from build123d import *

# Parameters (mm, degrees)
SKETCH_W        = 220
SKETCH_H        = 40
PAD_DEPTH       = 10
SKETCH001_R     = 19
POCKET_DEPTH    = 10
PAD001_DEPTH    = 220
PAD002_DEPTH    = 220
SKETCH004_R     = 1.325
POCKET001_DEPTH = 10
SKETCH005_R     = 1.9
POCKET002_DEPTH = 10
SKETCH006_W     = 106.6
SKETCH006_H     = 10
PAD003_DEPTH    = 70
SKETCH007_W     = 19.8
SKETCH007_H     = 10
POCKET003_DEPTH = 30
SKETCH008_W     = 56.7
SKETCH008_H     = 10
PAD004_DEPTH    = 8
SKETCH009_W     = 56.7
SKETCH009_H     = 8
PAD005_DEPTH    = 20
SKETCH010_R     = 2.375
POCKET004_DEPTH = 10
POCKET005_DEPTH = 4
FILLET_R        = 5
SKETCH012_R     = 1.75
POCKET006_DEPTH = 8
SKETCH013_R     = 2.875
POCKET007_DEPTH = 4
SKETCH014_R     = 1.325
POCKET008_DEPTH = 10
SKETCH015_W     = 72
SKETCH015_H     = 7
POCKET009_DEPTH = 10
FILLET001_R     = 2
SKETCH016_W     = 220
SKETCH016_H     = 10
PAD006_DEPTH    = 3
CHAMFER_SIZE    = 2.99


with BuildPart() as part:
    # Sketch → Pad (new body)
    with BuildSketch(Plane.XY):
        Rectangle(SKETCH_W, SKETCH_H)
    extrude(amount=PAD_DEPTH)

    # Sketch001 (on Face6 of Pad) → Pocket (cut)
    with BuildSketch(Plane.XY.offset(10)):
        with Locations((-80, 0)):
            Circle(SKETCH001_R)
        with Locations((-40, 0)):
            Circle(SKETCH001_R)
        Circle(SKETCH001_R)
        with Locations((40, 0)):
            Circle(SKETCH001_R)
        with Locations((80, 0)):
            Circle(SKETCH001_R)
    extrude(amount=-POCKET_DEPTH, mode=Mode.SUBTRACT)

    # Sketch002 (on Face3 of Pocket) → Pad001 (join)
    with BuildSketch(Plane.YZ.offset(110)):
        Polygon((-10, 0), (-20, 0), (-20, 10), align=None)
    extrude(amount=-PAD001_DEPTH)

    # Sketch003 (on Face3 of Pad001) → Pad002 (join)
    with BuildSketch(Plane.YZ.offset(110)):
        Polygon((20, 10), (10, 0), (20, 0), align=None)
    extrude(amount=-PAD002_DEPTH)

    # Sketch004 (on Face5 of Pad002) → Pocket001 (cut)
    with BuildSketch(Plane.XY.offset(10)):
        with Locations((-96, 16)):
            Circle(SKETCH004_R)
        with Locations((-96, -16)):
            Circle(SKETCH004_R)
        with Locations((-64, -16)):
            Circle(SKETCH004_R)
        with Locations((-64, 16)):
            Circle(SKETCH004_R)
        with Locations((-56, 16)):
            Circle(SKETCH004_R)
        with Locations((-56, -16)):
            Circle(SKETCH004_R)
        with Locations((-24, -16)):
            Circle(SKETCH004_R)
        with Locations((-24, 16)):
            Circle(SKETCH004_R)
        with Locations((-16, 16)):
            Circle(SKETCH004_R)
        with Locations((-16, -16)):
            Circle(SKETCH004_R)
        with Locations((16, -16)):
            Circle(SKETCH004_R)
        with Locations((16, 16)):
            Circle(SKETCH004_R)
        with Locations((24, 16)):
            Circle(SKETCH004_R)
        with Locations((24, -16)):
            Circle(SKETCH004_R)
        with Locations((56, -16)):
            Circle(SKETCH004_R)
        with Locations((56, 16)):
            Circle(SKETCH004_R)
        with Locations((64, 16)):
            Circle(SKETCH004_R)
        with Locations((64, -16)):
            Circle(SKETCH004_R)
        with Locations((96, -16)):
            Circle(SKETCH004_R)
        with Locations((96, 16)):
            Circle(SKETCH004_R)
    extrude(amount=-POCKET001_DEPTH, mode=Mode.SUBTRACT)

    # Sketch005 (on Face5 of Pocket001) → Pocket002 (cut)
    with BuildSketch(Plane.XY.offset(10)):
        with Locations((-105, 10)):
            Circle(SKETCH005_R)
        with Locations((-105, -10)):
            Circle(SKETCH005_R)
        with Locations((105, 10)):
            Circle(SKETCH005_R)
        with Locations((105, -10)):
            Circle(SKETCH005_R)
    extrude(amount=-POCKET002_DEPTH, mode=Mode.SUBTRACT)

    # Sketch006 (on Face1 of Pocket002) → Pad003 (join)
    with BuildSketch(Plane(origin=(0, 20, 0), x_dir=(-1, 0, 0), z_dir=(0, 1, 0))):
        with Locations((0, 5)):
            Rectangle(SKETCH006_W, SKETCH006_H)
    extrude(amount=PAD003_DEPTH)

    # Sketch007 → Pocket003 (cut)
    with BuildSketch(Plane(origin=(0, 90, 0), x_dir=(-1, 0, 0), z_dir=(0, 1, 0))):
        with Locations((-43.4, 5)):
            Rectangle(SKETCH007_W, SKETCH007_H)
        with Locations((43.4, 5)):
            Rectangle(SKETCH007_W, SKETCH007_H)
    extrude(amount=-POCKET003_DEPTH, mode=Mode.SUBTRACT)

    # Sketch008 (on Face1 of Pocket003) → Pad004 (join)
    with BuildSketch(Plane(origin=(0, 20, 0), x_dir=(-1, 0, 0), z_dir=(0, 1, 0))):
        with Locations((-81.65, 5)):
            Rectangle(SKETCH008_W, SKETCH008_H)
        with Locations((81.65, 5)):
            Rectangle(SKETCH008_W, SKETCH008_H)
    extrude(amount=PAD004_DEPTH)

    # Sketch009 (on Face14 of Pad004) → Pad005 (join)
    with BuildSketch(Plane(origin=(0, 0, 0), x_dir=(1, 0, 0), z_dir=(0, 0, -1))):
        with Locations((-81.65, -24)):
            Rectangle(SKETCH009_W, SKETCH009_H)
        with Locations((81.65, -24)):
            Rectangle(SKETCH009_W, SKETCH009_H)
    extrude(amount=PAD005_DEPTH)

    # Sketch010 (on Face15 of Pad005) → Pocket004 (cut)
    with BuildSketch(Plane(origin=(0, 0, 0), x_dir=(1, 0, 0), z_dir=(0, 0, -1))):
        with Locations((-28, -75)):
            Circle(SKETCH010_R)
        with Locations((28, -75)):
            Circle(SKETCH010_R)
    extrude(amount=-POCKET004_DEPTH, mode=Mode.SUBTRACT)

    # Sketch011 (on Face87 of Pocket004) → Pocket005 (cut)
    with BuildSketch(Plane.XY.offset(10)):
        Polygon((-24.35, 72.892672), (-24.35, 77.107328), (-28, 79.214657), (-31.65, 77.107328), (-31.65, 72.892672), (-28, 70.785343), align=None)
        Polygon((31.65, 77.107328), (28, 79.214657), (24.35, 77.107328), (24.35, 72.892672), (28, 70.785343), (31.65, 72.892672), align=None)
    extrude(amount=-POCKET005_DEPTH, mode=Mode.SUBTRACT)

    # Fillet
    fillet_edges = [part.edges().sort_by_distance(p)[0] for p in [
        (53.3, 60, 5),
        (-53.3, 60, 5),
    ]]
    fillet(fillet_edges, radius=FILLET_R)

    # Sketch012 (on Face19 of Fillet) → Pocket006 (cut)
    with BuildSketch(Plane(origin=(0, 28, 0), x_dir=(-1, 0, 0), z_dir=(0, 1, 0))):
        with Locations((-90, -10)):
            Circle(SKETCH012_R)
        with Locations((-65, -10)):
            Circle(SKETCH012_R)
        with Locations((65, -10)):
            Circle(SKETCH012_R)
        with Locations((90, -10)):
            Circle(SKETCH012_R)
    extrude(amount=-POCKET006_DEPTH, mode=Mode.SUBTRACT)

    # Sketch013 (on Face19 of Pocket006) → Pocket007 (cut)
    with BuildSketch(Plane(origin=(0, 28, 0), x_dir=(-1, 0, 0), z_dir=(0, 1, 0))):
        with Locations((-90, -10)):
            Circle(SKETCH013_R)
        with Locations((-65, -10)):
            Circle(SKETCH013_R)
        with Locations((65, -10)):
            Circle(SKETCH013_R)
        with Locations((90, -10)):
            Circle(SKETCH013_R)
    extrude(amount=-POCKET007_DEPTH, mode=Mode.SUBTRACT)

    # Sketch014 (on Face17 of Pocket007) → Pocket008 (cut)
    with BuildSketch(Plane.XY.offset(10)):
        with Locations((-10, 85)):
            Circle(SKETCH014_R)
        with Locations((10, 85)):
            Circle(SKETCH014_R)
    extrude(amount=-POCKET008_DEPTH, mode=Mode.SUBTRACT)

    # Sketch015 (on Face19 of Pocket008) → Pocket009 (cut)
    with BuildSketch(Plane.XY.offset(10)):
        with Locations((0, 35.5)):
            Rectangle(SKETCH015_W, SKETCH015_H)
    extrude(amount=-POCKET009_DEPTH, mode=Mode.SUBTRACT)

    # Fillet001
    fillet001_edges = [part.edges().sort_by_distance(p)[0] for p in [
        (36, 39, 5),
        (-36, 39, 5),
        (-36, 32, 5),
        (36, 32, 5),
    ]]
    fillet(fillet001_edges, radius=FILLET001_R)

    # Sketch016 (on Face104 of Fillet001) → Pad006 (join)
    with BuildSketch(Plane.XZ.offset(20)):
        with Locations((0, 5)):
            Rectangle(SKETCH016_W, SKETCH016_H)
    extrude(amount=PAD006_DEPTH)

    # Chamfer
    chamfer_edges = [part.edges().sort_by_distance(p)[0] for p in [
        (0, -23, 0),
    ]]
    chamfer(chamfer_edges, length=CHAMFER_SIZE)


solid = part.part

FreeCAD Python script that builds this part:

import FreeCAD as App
import Part
import Sketcher
Q = App.Units.Quantity


def edges_at(feature, points):
    """Names of the edges that pass closest to the given points."""
    edges = feature.Shape.Edges
    near = lambda p: min(range(len(edges)), key=lambda i: edges[i].distToShape(Part.Vertex(*p))[0])
    return sorted({f"Edge{near(p) + 1}" for p in points})


def add_polygon(sketch, points):
    """Adds a closed chain of lines whose ends are joined by coincident constraints."""
    first, n = sketch.GeometryCount, len(points)
    for a, b in zip(points, points[1:] + points[:1]):
        sketch.addGeometry(Part.LineSegment(App.Vector(*a, 0), App.Vector(*b, 0)), False)
    for i in range(n):
        sketch.addConstraint(Sketcher.Constraint("Coincident", first + i, 2, first + (i + 1) % n, 1))

doc = App.newDocument("Part")
body = doc.addObject("PartDesign::Body", "Body")

# Sketch on XY plane
sketch1 = doc.addObject("Sketcher::SketchObject", "Sketch")
body.addObject(sketch1)
sketch1.AttachmentSupport = (doc.XY_Plane, [""])
sketch1.MapMode = "FlatFace"
add_polygon(sketch1, [(-110, 20), (-110, -20), (110, -20), (110, 20)])  # lines 0-3
sketch1.addConstraint(Sketcher.Constraint("Vertical", 0))
sketch1.addConstraint(Sketcher.Constraint("Horizontal", 1))
sketch1.addConstraint(Sketcher.Constraint("Vertical", 2))
sketch1.addConstraint(Sketcher.Constraint("Horizontal", 3))
sketch1.addConstraint(Sketcher.Constraint("Symmetric", 0, 2, 2, 2, -1, 1))
sketch1.addConstraint(Sketcher.Constraint("DistanceX", 1, 1, 1, 2, 220.0))
sketch1.addConstraint(Sketcher.Constraint("DistanceY", 0, 2, 0, 1, 40.0))
pad1 = doc.addObject("PartDesign::Pad", "Pad")
body.addObject(pad1)
pad1.Profile = sketch1
pad1.Length = 10

# Sketch on XY plane
sketch2 = doc.addObject("Sketcher::SketchObject", "Sketch001")
body.addObject(sketch2)
sketch2.AttachmentSupport = (doc.XY_Plane, [""])
sketch2.MapMode = "FlatFace"
sketch2.AttachmentOffset = App.Placement(App.Vector(0, 0, 10), App.Rotation())
sketch2.addGeometry(Part.Circle(App.Vector(-80, 0, 0), App.Vector(0, 0, 1), 19), False)
sketch2.addGeometry(Part.Circle(App.Vector(-40, 0, 0), App.Vector(0, 0, 1), 19), False)
sketch2.addGeometry(Part.Circle(App.Vector(0, 0, 0), App.Vector(0, 0, 1), 19), False)
sketch2.addGeometry(Part.Circle(App.Vector(40, 0, 0), App.Vector(0, 0, 1), 19), False)
sketch2.addGeometry(Part.Circle(App.Vector(80, 0, 0), App.Vector(0, 0, 1), 19), False)
sketch2.addConstraint(Sketcher.Constraint("Coincident", 2, 3, -1, 1))
sketch2.addConstraint(Sketcher.Constraint("Equal", 0, 1))
sketch2.addConstraint(Sketcher.Constraint("Equal", 1, 2))
sketch2.addConstraint(Sketcher.Constraint("Equal", 2, 3))
sketch2.addConstraint(Sketcher.Constraint("Equal", 3, 4))
sketch2.addConstraint(Sketcher.Constraint("Symmetric", 1, 3, 3, 3, -1, 1))
sketch2.addConstraint(Sketcher.Constraint("Symmetric", 0, 3, 4, 3, -1, 1))
sketch2.addConstraint(Sketcher.Constraint("PointOnObject", 0, 3, -1))
sketch2.addConstraint(Sketcher.Constraint("PointOnObject", 1, 3, -1))
sketch2.addConstraint(Sketcher.Constraint("Diameter", 0, 38.0))
sketch2.addConstraint(Sketcher.Constraint("DistanceX", 0, 3, -1, 1, 80.0))
sketch2.addConstraint(Sketcher.Constraint("DistanceX", 1, 3, -1, 1, 40.0))
pocket1 = doc.addObject("PartDesign::Pocket", "Pocket")
body.addObject(pocket1)
pocket1.Profile = sketch2
pocket1.Length = 10

# Sketch on YZ plane
sketch3 = doc.addObject("Sketcher::SketchObject", "Sketch002")
body.addObject(sketch3)
sketch3.AttachmentSupport = (doc.YZ_Plane, [""])
sketch3.MapMode = "FlatFace"
sketch3.AttachmentOffset = App.Placement(App.Vector(0, 0, 110), App.Rotation())
add_polygon(sketch3, [(-20, 0), (-10, 0), (-20, 10)])  # lines 0-2
sketch3.addConstraint(Sketcher.Constraint("Horizontal", 0))
sketch3.addConstraint(Sketcher.Constraint("Vertical", 2))
sketch3.addConstraint(Sketcher.Constraint("PointOnObject", 0, 2, -1))
sketch3.addConstraint(Sketcher.Constraint("Equal", 0, 2))
sketch3.addConstraint(Sketcher.Constraint("DistanceX", 0, 1, 0, 2, 10.0))
sketch3.addConstraint(Sketcher.Constraint("DistanceX", 0, 2, -1, 1, 10.0))
pad2 = doc.addObject("PartDesign::Pad", "Pad001")
body.addObject(pad2)
pad2.Profile = sketch3
pad2.Length = 220
pad2.Reversed = True

# Sketch on YZ plane
sketch4 = doc.addObject("Sketcher::SketchObject", "Sketch003")
body.addObject(sketch4)
sketch4.AttachmentSupport = (doc.YZ_Plane, [""])
sketch4.MapMode = "FlatFace"
sketch4.AttachmentOffset = App.Placement(App.Vector(0, 0, 110), App.Rotation())
add_polygon(sketch4, [(20, 10), (10, 0), (20, 0)])  # lines 0-2
sketch4.addConstraint(Sketcher.Constraint("Horizontal", 1))
sketch4.addConstraint(Sketcher.Constraint("Vertical", 2))
sketch4.addConstraint(Sketcher.Constraint("PointOnObject", 0, 2, -1))
sketch4.addConstraint(Sketcher.Constraint("Equal", 1, 2))
sketch4.addConstraint(Sketcher.Constraint("DistanceX", 1, 1, 1, 2, 10.0))
sketch4.addConstraint(Sketcher.Constraint("DistanceX", -1, 1, 0, 2, 10.0))
pad3 = doc.addObject("PartDesign::Pad", "Pad002")
body.addObject(pad3)
pad3.Profile = sketch4
pad3.Length = 220
pad3.Reversed = True

# Sketch on XY plane
sketch5 = doc.addObject("Sketcher::SketchObject", "Sketch004")
body.addObject(sketch5)
sketch5.AttachmentSupport = (doc.XY_Plane, [""])
sketch5.MapMode = "FlatFace"
sketch5.AttachmentOffset = App.Placement(App.Vector(0, 0, 10), App.Rotation())
sketch5.addGeometry(Part.Circle(App.Vector(-96, 16, 0), App.Vector(0, 0, 1), 1.325), False)
sketch5.addGeometry(Part.Circle(App.Vector(-96, -16, 0), App.Vector(0, 0, 1), 1.325), False)
sketch5.addGeometry(Part.Circle(App.Vector(-64, -16, 0), App.Vector(0, 0, 1), 1.325), False)
sketch5.addGeometry(Part.Circle(App.Vector(-64, 16, 0), App.Vector(0, 0, 1), 1.325), False)
sketch5.addGeometry(Part.Circle(App.Vector(-56, 16, 0), App.Vector(0, 0, 1), 1.325), False)
sketch5.addGeometry(Part.Circle(App.Vector(-56, -16, 0), App.Vector(0, 0, 1), 1.325), False)
sketch5.addGeometry(Part.Circle(App.Vector(-24, -16, 0), App.Vector(0, 0, 1), 1.325), False)
sketch5.addGeometry(Part.Circle(App.Vector(-24, 16, 0), App.Vector(0, 0, 1), 1.325), False)
sketch5.addGeometry(Part.Circle(App.Vector(-16, 16, 0), App.Vector(0, 0, 1), 1.325), False)
sketch5.addGeometry(Part.Circle(App.Vector(-16, -16, 0), App.Vector(0, 0, 1), 1.325), False)
sketch5.addGeometry(Part.Circle(App.Vector(16, -16, 0), App.Vector(0, 0, 1), 1.325), False)
sketch5.addGeometry(Part.Circle(App.Vector(16, 16, 0), App.Vector(0, 0, 1), 1.325), False)
sketch5.addGeometry(Part.Circle(App.Vector(24, 16, 0), App.Vector(0, 0, 1), 1.325), False)
sketch5.addGeometry(Part.Circle(App.Vector(24, -16, 0), App.Vector(0, 0, 1), 1.325), False)
sketch5.addGeometry(Part.Circle(App.Vector(56, -16, 0), App.Vector(0, 0, 1), 1.325), False)
sketch5.addGeometry(Part.Circle(App.Vector(56, 16, 0), App.Vector(0, 0, 1), 1.325), False)
sketch5.addGeometry(Part.Circle(App.Vector(64, 16, 0), App.Vector(0, 0, 1), 1.325), False)
sketch5.addGeometry(Part.Circle(App.Vector(64, -16, 0), App.Vector(0, 0, 1), 1.325), False)
sketch5.addGeometry(Part.Circle(App.Vector(96, -16, 0), App.Vector(0, 0, 1), 1.325), False)
sketch5.addGeometry(Part.Circle(App.Vector(96, 16, 0), App.Vector(0, 0, 1), 1.325), False)
sketch5.addConstraint(Sketcher.Constraint("Equal", 0, 1))
sketch5.addConstraint(Sketcher.Constraint("Equal", 1, 2))
sketch5.addConstraint(Sketcher.Constraint("Equal", 2, 3))
sketch5.addConstraint(Sketcher.Constraint("Equal", 3, 4))
sketch5.addConstraint(Sketcher.Constraint("Equal", 4, 5))
sketch5.addConstraint(Sketcher.Constraint("Equal", 5, 6))
sketch5.addConstraint(Sketcher.Constraint("Equal", 6, 7))
sketch5.addConstraint(Sketcher.Constraint("Equal", 7, 8))
sketch5.addConstraint(Sketcher.Constraint("Equal", 8, 9))
sketch5.addConstraint(Sketcher.Constraint("Equal", 9, 10))
sketch5.addConstraint(Sketcher.Constraint("Equal", 10, 11))
sketch5.addConstraint(Sketcher.Constraint("Equal", 11, 12))
sketch5.addConstraint(Sketcher.Constraint("Equal", 12, 13))
sketch5.addConstraint(Sketcher.Constraint("Equal", 13, 14))
sketch5.addConstraint(Sketcher.Constraint("Equal", 14, 15))
sketch5.addConstraint(Sketcher.Constraint("Equal", 15, 16))
sketch5.addConstraint(Sketcher.Constraint("Equal", 16, 17))
sketch5.addConstraint(Sketcher.Constraint("Equal", 17, 18))
sketch5.addConstraint(Sketcher.Constraint("Equal", 18, 19))
sketch5.addConstraint(Sketcher.Constraint("Symmetric", 8, 3, 10, 3, -1, 1))
sketch5.addConstraint(Sketcher.Constraint("Symmetric", 9, 3, 11, 3, -1, 1))
sketch5.addConstraint(Sketcher.Constraint("Symmetric", 6, 3, 12, 3, -1, 1))
sketch5.addConstraint(Sketcher.Constraint("Symmetric", 7, 3, 13, 3, -1, 1))
sketch5.addConstraint(Sketcher.Constraint("Symmetric", 4, 3, 14, 3, -1, 1))
sketch5.addConstraint(Sketcher.Constraint("Symmetric", 5, 3, 15, 3, -1, 1))
sketch5.addConstraint(Sketcher.Constraint("Symmetric", 2, 3, 16, 3, -1, 1))
sketch5.addConstraint(Sketcher.Constraint("Symmetric", 3, 3, 17, 3, -1, 1))
sketch5.addConstraint(Sketcher.Constraint("Symmetric", 0, 3, 18, 3, -1, 1))
sketch5.addConstraint(Sketcher.Constraint("Symmetric", 1, 3, 19, 3, -1, 1))
sketch5.addConstraint(Sketcher.Constraint("Symmetric", 9, 3, 10, 3, -2))
sketch5.addConstraint(Sketcher.Constraint("Symmetric", 7, 3, 12, 3, -2))
sketch5.addConstraint(Sketcher.Constraint("Symmetric", 5, 3, 14, 3, -2))
sketch5.addConstraint(Sketcher.Constraint("Symmetric", 3, 3, 16, 3, -2))
sketch5.addConstraint(Sketcher.Constraint("Symmetric", 1, 3, 18, 3, -2))
sketch5.addConstraint(Sketcher.Constraint("Horizontal", 1, 3, 2, 3))
sketch5.addConstraint(Sketcher.Constraint("Horizontal", 3, 3, 4, 3))
sketch5.addConstraint(Sketcher.Constraint("Horizontal", 5, 3, 6, 3))
sketch5.addConstraint(Sketcher.Constraint("Horizontal", 7, 3, 8, 3))
sketch5.addConstraint(Sketcher.Constraint("Diameter", 0, 2.65))
sketch5.addConstraint(Sketcher.Constraint("DistanceX", 0, 3, -1, 1, 96.0))
sketch5.addConstraint(Sketcher.Constraint("DistanceY", -1, 1, 0, 3, 16.0))
sketch5.addConstraint(Sketcher.Constraint("DistanceX", 2, 3, -1, 1, 64.0))
sketch5.addConstraint(Sketcher.Constraint("DistanceX", 4, 3, -1, 1, 56.0))
sketch5.addConstraint(Sketcher.Constraint("DistanceX", 6, 3, -1, 1, 24.0))
sketch5.addConstraint(Sketcher.Constraint("DistanceX", 8, 3, -1, 1, 16.0))
pocket2 = doc.addObject("PartDesign::Pocket", "Pocket001")
body.addObject(pocket2)
pocket2.Profile = sketch5
pocket2.Length = 10

# Sketch on XY plane
sketch6 = doc.addObject("Sketcher::SketchObject", "Sketch005")
body.addObject(sketch6)
sketch6.AttachmentSupport = (doc.XY_Plane, [""])
sketch6.MapMode = "FlatFace"
sketch6.AttachmentOffset = App.Placement(App.Vector(0, 0, 10), App.Rotation())
sketch6.addGeometry(Part.Circle(App.Vector(-105, 10, 0), App.Vector(0, 0, 1), 1.9), False)
sketch6.addGeometry(Part.Circle(App.Vector(-105, -10, 0), App.Vector(0, 0, 1), 1.9), False)
sketch6.addGeometry(Part.Circle(App.Vector(105, 10, 0), App.Vector(0, 0, 1), 1.9), False)
sketch6.addGeometry(Part.Circle(App.Vector(105, -10, 0), App.Vector(0, 0, 1), 1.9), False)
sketch6.addConstraint(Sketcher.Constraint("Equal", 0, 1))
sketch6.addConstraint(Sketcher.Constraint("Equal", 1, 2))
sketch6.addConstraint(Sketcher.Constraint("Equal", 2, 3))
sketch6.addConstraint(Sketcher.Constraint("Symmetric", 1, 3, 2, 3, -1, 1))
sketch6.addConstraint(Sketcher.Constraint("Symmetric", 0, 3, 3, 3, -1, 1))
sketch6.addConstraint(Sketcher.Constraint("Symmetric", 0, 3, 2, 3, -2))
sketch6.addConstraint(Sketcher.Constraint("Diameter", 0, 3.8))
sketch6.addConstraint(Sketcher.Constraint("DistanceX", 0, 3, -1, 1, 105.0))
sketch6.addConstraint(Sketcher.Constraint("DistanceY", -1, 1, 0, 3, 10.0))
pocket3 = doc.addObject("PartDesign::Pocket", "Pocket002")
body.addObject(pocket3)
pocket3.Profile = sketch6
pocket3.Length = 10

# Sketch on XZ plane
sketch7 = doc.addObject("Sketcher::SketchObject", "Sketch006")
body.addObject(sketch7)
sketch7.AttachmentSupport = (doc.XZ_Plane, [""])
sketch7.MapMode = "FlatFace"
sketch7.AttachmentOffset = App.Placement(App.Vector(0, 0, -20), App.Rotation())
add_polygon(sketch7, [(53.3, 10), (53.3, 0), (-53.3, 0), (-53.3, 10)])  # lines 0-3
sketch7.addConstraint(Sketcher.Constraint("Vertical", 0))
sketch7.addConstraint(Sketcher.Constraint("Horizontal", 1))
sketch7.addConstraint(Sketcher.Constraint("Vertical", 2))
sketch7.addConstraint(Sketcher.Constraint("Horizontal", 3))
sketch7.addConstraint(Sketcher.Constraint("Symmetric", 0, 2, 1, 2, -1, 1))
sketch7.addConstraint(Sketcher.Constraint("DistanceY", 0, 2, 0, 1, 10.0))
sketch7.addConstraint(Sketcher.Constraint("DistanceX", 1, 2, 1, 1, 106.6))
pad4 = doc.addObject("PartDesign::Pad", "Pad003")
body.addObject(pad4)
pad4.Profile = sketch7
pad4.Length = 70
pad4.Reversed = True

# Sketch on XZ plane
sketch8 = doc.addObject("Sketcher::SketchObject", "Sketch007")
body.addObject(sketch8)
sketch8.AttachmentSupport = (doc.XZ_Plane, [""])
sketch8.MapMode = "FlatFace"
sketch8.AttachmentOffset = App.Placement(App.Vector(0, 0, -90), App.Rotation())
add_polygon(sketch8, [(53.3, 10), (53.3, 0), (33.5, 0), (33.5, 10)])  # lines 0-3
add_polygon(sketch8, [(-33.5, 10), (-33.5, 0), (-53.3, 0), (-53.3, 10)])  # lines 4-7
sketch8.addConstraint(Sketcher.Constraint("Vertical", 0))
sketch8.addConstraint(Sketcher.Constraint("Horizontal", 1))
sketch8.addConstraint(Sketcher.Constraint("Vertical", 2))
sketch8.addConstraint(Sketcher.Constraint("Horizontal", 3))
sketch8.addConstraint(Sketcher.Constraint("Vertical", 4))
sketch8.addConstraint(Sketcher.Constraint("Horizontal", 5))
sketch8.addConstraint(Sketcher.Constraint("Vertical", 6))
sketch8.addConstraint(Sketcher.Constraint("Horizontal", 7))
sketch8.addConstraint(Sketcher.Constraint("Symmetric", 1, 2, 4, 2, -1, 1))
sketch8.addConstraint(Sketcher.Constraint("Symmetric", 0, 2, 5, 2, -2))
sketch8.addConstraint(Sketcher.Constraint("Horizontal", 3, 2, 6, 2))
sketch8.addConstraint(Sketcher.Constraint("DistanceY", 0, 2, 0, 1, 10.0))
sketch8.addConstraint(Sketcher.Constraint("DistanceX", 1, 2, 1, 1, 19.8))
sketch8.addConstraint(Sketcher.Constraint("DistanceX", 4, 2, 1, 2, 67.0))
pocket4 = doc.addObject("PartDesign::Pocket", "Pocket003")
body.addObject(pocket4)
pocket4.Profile = sketch8
pocket4.Length = 30
pocket4.Reversed = True

# Sketch on XZ plane
sketch9 = doc.addObject("Sketcher::SketchObject", "Sketch008")
body.addObject(sketch9)
sketch9.AttachmentSupport = (doc.XZ_Plane, [""])
sketch9.MapMode = "FlatFace"
sketch9.AttachmentOffset = App.Placement(App.Vector(0, 0, -20), App.Rotation())
add_polygon(sketch9, [(110, 10), (110, 0), (53.3, 0), (53.3, 10)])  # lines 0-3
add_polygon(sketch9, [(-53.3, 10), (-53.3, 0), (-110, 0), (-110, 10)])  # lines 4-7
sketch9.addConstraint(Sketcher.Constraint("Vertical", 0))
sketch9.addConstraint(Sketcher.Constraint("Horizontal", 1))
sketch9.addConstraint(Sketcher.Constraint("Vertical", 2))
sketch9.addConstraint(Sketcher.Constraint("Horizontal", 3))
sketch9.addConstraint(Sketcher.Constraint("Vertical", 4))
sketch9.addConstraint(Sketcher.Constraint("Horizontal", 5))
sketch9.addConstraint(Sketcher.Constraint("Vertical", 6))
sketch9.addConstraint(Sketcher.Constraint("Horizontal", 7))
sketch9.addConstraint(Sketcher.Constraint("Symmetric", 1, 2, 4, 2, -1, 1))
sketch9.addConstraint(Sketcher.Constraint("Symmetric", 0, 2, 5, 2, -2))
sketch9.addConstraint(Sketcher.Constraint("Horizontal", 3, 2, 6, 2))
sketch9.addConstraint(Sketcher.Constraint("DistanceY", 0, 2, 0, 1, 10.0))
sketch9.addConstraint(Sketcher.Constraint("DistanceX", 1, 2, 1, 1, 56.7))
sketch9.addConstraint(Sketcher.Constraint("DistanceX", -1, 1, 0, 2, 110.0))
pad5 = doc.addObject("PartDesign::Pad", "Pad004")
body.addObject(pad5)
pad5.Profile = sketch9
pad5.Length = 8
pad5.Reversed = True

# Sketch on XY plane
sketch10 = doc.addObject("Sketcher::SketchObject", "Sketch009")
body.addObject(sketch10)
sketch10.AttachmentSupport = (doc.XY_Plane, [""])
sketch10.MapMode = "FlatFace"
add_polygon(sketch10, [(-110, 20), (-110, 28), (-53.3, 28), (-53.3, 20)])  # lines 0-3
add_polygon(sketch10, [(53.3, 20), (53.3, 28), (110, 28), (110, 20)])  # lines 4-7
sketch10.addConstraint(Sketcher.Constraint("Vertical", 0))
sketch10.addConstraint(Sketcher.Constraint("Horizontal", 1))
sketch10.addConstraint(Sketcher.Constraint("Vertical", 2))
sketch10.addConstraint(Sketcher.Constraint("Horizontal", 3))
sketch10.addConstraint(Sketcher.Constraint("Vertical", 4))
sketch10.addConstraint(Sketcher.Constraint("Horizontal", 5))
sketch10.addConstraint(Sketcher.Constraint("Vertical", 6))
sketch10.addConstraint(Sketcher.Constraint("Horizontal", 7))
sketch10.addConstraint(Sketcher.Constraint("Symmetric", 1, 2, 4, 2, -2))
sketch10.addConstraint(Sketcher.Constraint("Symmetric", 3, 2, 6, 2, -2))
sketch10.addConstraint(Sketcher.Constraint("DistanceY", 0, 1, 0, 2, 8.0))
sketch10.addConstraint(Sketcher.Constraint("DistanceX", 1, 1, 1, 2, 56.7))
sketch10.addConstraint(Sketcher.Constraint("DistanceX", 0, 2, -1, 1, 110.0))
sketch10.addConstraint(Sketcher.Constraint("DistanceY", -1, 1, 0, 2, 28.0))
pad6 = doc.addObject("PartDesign::Pad", "Pad005")
body.addObject(pad6)
pad6.Profile = sketch10
pad6.Length = 20
pad6.Reversed = True

# Sketch on XY plane
sketch11 = doc.addObject("Sketcher::SketchObject", "Sketch010")
body.addObject(sketch11)
sketch11.AttachmentSupport = (doc.XY_Plane, [""])
sketch11.MapMode = "FlatFace"
sketch11.addGeometry(Part.Circle(App.Vector(-28, 75, 0), App.Vector(0, 0, 1), 2.375), False)
sketch11.addGeometry(Part.Circle(App.Vector(28, 75, 0), App.Vector(0, 0, 1), 2.375), False)
sketch11.addConstraint(Sketcher.Constraint("Equal", 0, 1))
sketch11.addConstraint(Sketcher.Constraint("Symmetric", 0, 3, 1, 3, -2))
sketch11.addConstraint(Sketcher.Constraint("Diameter", 0, 4.75))
sketch11.addConstraint(Sketcher.Constraint("DistanceX", 0, 3, -1, 1, 28.0))
sketch11.addConstraint(Sketcher.Constraint("DistanceY", -1, 1, 0, 3, 75.0))
pocket5 = doc.addObject("PartDesign::Pocket", "Pocket004")
body.addObject(pocket5)
pocket5.Profile = sketch11
pocket5.Length = 10
pocket5.Reversed = True

# Sketch on XY plane
sketch12 = doc.addObject("Sketcher::SketchObject", "Sketch011")
body.addObject(sketch12)
sketch12.AttachmentSupport = (doc.XY_Plane, [""])
sketch12.MapMode = "FlatFace"
sketch12.AttachmentOffset = App.Placement(App.Vector(0, 0, 10), App.Rotation())
add_polygon(sketch12, [(-24.35, 72.892672), (-24.35, 77.107328), (-28, 79.214657), (-31.65, 77.107328), (-31.65, 72.892672), (-28, 70.785343)])  # lines 0-5
add_polygon(sketch12, [(31.65, 77.107328), (28, 79.214657), (24.35, 77.107328), (24.35, 72.892672), (28, 70.785343), (31.65, 72.892672)])  # lines 6-11
sketch12.addConstraint(Sketcher.Constraint("Vertical", 0))
sketch12.addConstraint(Sketcher.Constraint("Vertical", 3))
sketch12.addConstraint(Sketcher.Constraint("Vertical", 8))
sketch12.addConstraint(Sketcher.Constraint("Vertical", 11))
sketch12.addConstraint(Sketcher.Constraint("Symmetric", 1, 2, 6, 2, -2))
sketch12.addConstraint(Sketcher.Constraint("Symmetric", 0, 2, 7, 2, -2))
sketch12.addConstraint(Sketcher.Constraint("Symmetric", 4, 2, 9, 2, -2))
sketch12.addConstraint(Sketcher.Constraint("Symmetric", 3, 2, 10, 2, -2))
sketch12.addConstraint(Sketcher.Constraint("Parallel", 1, 4))
sketch12.addConstraint(Sketcher.Constraint("Parallel", 2, 5))
sketch12.addConstraint(Sketcher.Constraint("Parallel", 4, 6))
sketch12.addConstraint(Sketcher.Constraint("Parallel", 5, 7))
sketch12.addConstraint(Sketcher.Constraint("Parallel", 6, 9))
sketch12.addConstraint(Sketcher.Constraint("Horizontal", 0, 2, 2, 2))
sketch12.addConstraint(Sketcher.Constraint("Horizontal", 3, 2, 5, 2))
sketch12.addConstraint(Sketcher.Constraint("Angle", 1, Q("149.999994 deg")))
sketch12.addConstraint(Sketcher.Constraint("DistanceX", 1, 2, -1, 1, 28.0))
sketch12.addConstraint(Sketcher.Constraint("DistanceX", 2, 2, 0, 2, 7.3))
sketch12.addConstraint(Sketcher.Constraint("DistanceY", 0, 1, 0, 2, 4.214656))
sketch12.addConstraint(Sketcher.Constraint("DistanceY", -1, 1, 0, 2, 77.107328))
pocket6 = doc.addObject("PartDesign::Pocket", "Pocket005")
body.addObject(pocket6)
pocket6.Profile = sketch12
pocket6.Length = 4
doc.recompute()

fillet = doc.addObject("PartDesign::Fillet", "Fillet")
body.addObject(fillet)
fillet.Base = (pocket6, edges_at(pocket6, [(53.3, 60, 5), (-53.3, 60, 5)]))
fillet.Radius = 5

# Sketch on XZ plane
sketch13 = doc.addObject("Sketcher::SketchObject", "Sketch012")
body.addObject(sketch13)
sketch13.AttachmentSupport = (doc.XZ_Plane, [""])
sketch13.MapMode = "FlatFace"
sketch13.AttachmentOffset = App.Placement(App.Vector(0, 0, -28), App.Rotation())
sketch13.addGeometry(Part.Circle(App.Vector(90, -10, 0), App.Vector(0, 0, 1), 1.75), False)
sketch13.addGeometry(Part.Circle(App.Vector(65, -10, 0), App.Vector(0, 0, 1), 1.75), False)
sketch13.addGeometry(Part.Circle(App.Vector(-65, -10, 0), App.Vector(0, 0, 1), 1.75), False)
sketch13.addGeometry(Part.Circle(App.Vector(-90, -10, 0), App.Vector(0, 0, 1), 1.75), False)
sketch13.addConstraint(Sketcher.Constraint("Equal", 0, 1))
sketch13.addConstraint(Sketcher.Constraint("Equal", 1, 2))
sketch13.addConstraint(Sketcher.Constraint("Equal", 2, 3))
sketch13.addConstraint(Sketcher.Constraint("Symmetric", 1, 3, 2, 3, -2))
sketch13.addConstraint(Sketcher.Constraint("Symmetric", 0, 3, 3, 3, -2))
sketch13.addConstraint(Sketcher.Constraint("Horizontal", 0, 3, 1, 3))
sketch13.addConstraint(Sketcher.Constraint("Diameter", 0, 3.5))
sketch13.addConstraint(Sketcher.Constraint("DistanceX", -1, 1, 0, 3, 90.0))
sketch13.addConstraint(Sketcher.Constraint("DistanceY", 0, 3, -1, 1, 10.0))
sketch13.addConstraint(Sketcher.Constraint("DistanceX", -1, 1, 1, 3, 65.0))
pocket7 = doc.addObject("PartDesign::Pocket", "Pocket006")
body.addObject(pocket7)
pocket7.Profile = sketch13
pocket7.Length = 8
pocket7.Reversed = True

# Sketch on XZ plane
sketch14 = doc.addObject("Sketcher::SketchObject", "Sketch013")
body.addObject(sketch14)
sketch14.AttachmentSupport = (doc.XZ_Plane, [""])
sketch14.MapMode = "FlatFace"
sketch14.AttachmentOffset = App.Placement(App.Vector(0, 0, -28), App.Rotation())
sketch14.addGeometry(Part.Circle(App.Vector(90, -10, 0), App.Vector(0, 0, 1), 2.875), False)
sketch14.addGeometry(Part.Circle(App.Vector(65, -10, 0), App.Vector(0, 0, 1), 2.875), False)
sketch14.addGeometry(Part.Circle(App.Vector(-65, -10, 0), App.Vector(0, 0, 1), 2.875), False)
sketch14.addGeometry(Part.Circle(App.Vector(-90, -10, 0), App.Vector(0, 0, 1), 2.875), False)
sketch14.addConstraint(Sketcher.Constraint("Equal", 0, 1))
sketch14.addConstraint(Sketcher.Constraint("Equal", 1, 2))
sketch14.addConstraint(Sketcher.Constraint("Equal", 2, 3))
sketch14.addConstraint(Sketcher.Constraint("Symmetric", 1, 3, 2, 3, -2))
sketch14.addConstraint(Sketcher.Constraint("Symmetric", 0, 3, 3, 3, -2))
sketch14.addConstraint(Sketcher.Constraint("Horizontal", 0, 3, 1, 3))
sketch14.addConstraint(Sketcher.Constraint("Diameter", 0, 5.75))
sketch14.addConstraint(Sketcher.Constraint("DistanceX", -1, 1, 0, 3, 90.0))
sketch14.addConstraint(Sketcher.Constraint("DistanceY", 0, 3, -1, 1, 10.0))
sketch14.addConstraint(Sketcher.Constraint("DistanceX", -1, 1, 1, 3, 65.0))
pocket8 = doc.addObject("PartDesign::Pocket", "Pocket007")
body.addObject(pocket8)
pocket8.Profile = sketch14
pocket8.Length = 4
pocket8.Reversed = True

# Sketch on XY plane
sketch15 = doc.addObject("Sketcher::SketchObject", "Sketch014")
body.addObject(sketch15)
sketch15.AttachmentSupport = (doc.XY_Plane, [""])
sketch15.MapMode = "FlatFace"
sketch15.AttachmentOffset = App.Placement(App.Vector(0, 0, 10), App.Rotation())
sketch15.addGeometry(Part.Circle(App.Vector(-10, 85, 0), App.Vector(0, 0, 1), 1.325), False)
sketch15.addGeometry(Part.Circle(App.Vector(10, 85, 0), App.Vector(0, 0, 1), 1.325), False)
sketch15.addConstraint(Sketcher.Constraint("Equal", 0, 1))
sketch15.addConstraint(Sketcher.Constraint("Symmetric", 0, 3, 1, 3, -2))
sketch15.addConstraint(Sketcher.Constraint("Diameter", 0, 2.65))
sketch15.addConstraint(Sketcher.Constraint("DistanceX", 0, 3, -1, 1, 10.0))
sketch15.addConstraint(Sketcher.Constraint("DistanceY", -1, 1, 0, 3, 85.0))
pocket9 = doc.addObject("PartDesign::Pocket", "Pocket008")
body.addObject(pocket9)
pocket9.Profile = sketch15
pocket9.Length = 10

# Sketch on XY plane
sketch16 = doc.addObject("Sketcher::SketchObject", "Sketch015")
body.addObject(sketch16)
sketch16.AttachmentSupport = (doc.XY_Plane, [""])
sketch16.MapMode = "FlatFace"
sketch16.AttachmentOffset = App.Placement(App.Vector(0, 0, 10), App.Rotation())
add_polygon(sketch16, [(-36, 39), (-36, 32), (36, 32), (36, 39)])  # lines 0-3
sketch16.addConstraint(Sketcher.Constraint("Vertical", 0))
sketch16.addConstraint(Sketcher.Constraint("Horizontal", 1))
sketch16.addConstraint(Sketcher.Constraint("Vertical", 2))
sketch16.addConstraint(Sketcher.Constraint("Horizontal", 3))
sketch16.addConstraint(Sketcher.Constraint("DistanceX", 1, 1, 1, 2, 72.0))
sketch16.addConstraint(Sketcher.Constraint("DistanceY", 0, 2, 0, 1, 7.0))
sketch16.addConstraint(Sketcher.Constraint("DistanceX", 0, 2, -1, 1, 36.0))
sketch16.addConstraint(Sketcher.Constraint("DistanceY", -1, 1, 0, 2, 32.0))
pocket10 = doc.addObject("PartDesign::Pocket", "Pocket009")
body.addObject(pocket10)
pocket10.Profile = sketch16
pocket10.Length = 10
doc.recompute()

fillet2 = doc.addObject("PartDesign::Fillet", "Fillet001")
body.addObject(fillet2)
fillet2.Base = (pocket10, edges_at(pocket10, [
    (36, 39, 5),
    (-36, 39, 5),
    (-36, 32, 5),
    (36, 32, 5),
]))
fillet2.Radius = 2

# Sketch on XZ plane
sketch17 = doc.addObject("Sketcher::SketchObject", "Sketch016")
body.addObject(sketch17)
sketch17.AttachmentSupport = (doc.XZ_Plane, [""])
sketch17.MapMode = "FlatFace"
sketch17.AttachmentOffset = App.Placement(App.Vector(0, 0, 20), App.Rotation())
add_polygon(sketch17, [(-110, 10), (-110, 0), (110, 0), (110, 10)])  # lines 0-3
sketch17.addConstraint(Sketcher.Constraint("Vertical", 0))
sketch17.addConstraint(Sketcher.Constraint("Horizontal", 1))
sketch17.addConstraint(Sketcher.Constraint("Vertical", 2))
sketch17.addConstraint(Sketcher.Constraint("Horizontal", 3))
sketch17.addConstraint(Sketcher.Constraint("Symmetric", 0, 2, 1, 2, -1, 1))
sketch17.addConstraint(Sketcher.Constraint("DistanceX", 1, 1, 1, 2, 220.0))
sketch17.addConstraint(Sketcher.Constraint("DistanceY", 0, 2, 0, 1, 10.0))
pad7 = doc.addObject("PartDesign::Pad", "Pad006")
body.addObject(pad7)
pad7.Profile = sketch17
pad7.Length = 3
doc.recompute()

chamfer = doc.addObject("PartDesign::Chamfer", "Chamfer")
body.addObject(chamfer)
chamfer.Base = (pad7, edges_at(pad7, [(0, -23, 0)]))
chamfer.Size = 2.99

doc.recompute()
